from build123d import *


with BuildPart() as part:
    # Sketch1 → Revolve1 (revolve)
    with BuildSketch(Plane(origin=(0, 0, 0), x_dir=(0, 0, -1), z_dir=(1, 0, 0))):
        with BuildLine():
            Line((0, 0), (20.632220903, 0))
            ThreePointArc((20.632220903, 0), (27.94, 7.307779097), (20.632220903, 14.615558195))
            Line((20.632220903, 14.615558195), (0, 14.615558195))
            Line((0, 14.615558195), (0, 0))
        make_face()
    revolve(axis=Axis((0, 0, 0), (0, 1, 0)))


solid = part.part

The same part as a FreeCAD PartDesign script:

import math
import FreeCAD as App
import Part
import Sketcher

doc = App.newDocument("Part")
body = doc.addObject("PartDesign::Body", "Body")

# Sketch on YZ plane
sketch1 = doc.addObject("Sketcher::SketchObject", "Sketch")
body.addObject(sketch1)
sketch1.AttachmentSupport = (doc.YZ_Plane, [""])
sketch1.MapMode = "FlatFace"
sketch1.addGeometry([
    Part.LineSegment(App.Vector(0, 0, 0), App.Vector(0, -21, 0)),
    Part.ArcOfCircle(Part.Circle(App.Vector(7, -21, 0), App.Vector(0, 0, 1), 7), math.radians(180), math.radians(360)),
    Part.LineSegment(App.Vector(15, -21, 0), App.Vector(15, 0, 0)),
    Part.LineSegment(App.Vector(15, 0, 0), App.Vector(0, 0, 0)),
], False)
sketch1.addConstraint([
    Sketcher.Constraint("Tangent", 0, 2, 1, 1),
    Sketcher.Constraint("Tangent", 1, 2, 2, 1),
    Sketcher.Constraint("Coincident", 2, 2, 3, 1),
    Sketcher.Constraint("Coincident", 3, 2, 0, 1),
    Sketcher.Constraint("Vertical", 0),
    Sketcher.Constraint("Vertical", 2),
    Sketcher.Constraint("Horizontal", 3),
    Sketcher.Constraint("Coincident", 3, 2, -1, 1),
    Sketcher.Constraint("Radius", 1, 7.307779),
    Sketcher.Constraint("DistanceY", 0, 2, 0, 1, 20.632221),
])
revolution = doc.addObject("PartDesign::Revolution", "Revolution")
body.addObject(revolution)
revolution.Profile = sketch1
revolution.ReferenceAxis = (sketch1, ["H_Axis"])
revolution.Angle = 360

doc.recompute()
